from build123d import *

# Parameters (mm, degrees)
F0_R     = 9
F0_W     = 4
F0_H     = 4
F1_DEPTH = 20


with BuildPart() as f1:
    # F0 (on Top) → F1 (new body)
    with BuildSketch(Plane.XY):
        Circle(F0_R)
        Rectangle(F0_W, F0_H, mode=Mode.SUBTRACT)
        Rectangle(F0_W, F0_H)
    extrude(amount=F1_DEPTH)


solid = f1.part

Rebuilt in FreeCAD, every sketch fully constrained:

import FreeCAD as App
import Part
import Sketcher

V = App.Vector

doc = App.newDocument("Part")
body = doc.addObject("PartDesign::Body", "Body")

# Sketch on XY plane
sketch1 = doc.addObject("Sketcher::SketchObject", "Sketch")
body.addObject(sketch1)
sketch1.AttachmentSupport = (doc.XY_Plane, [""])
sketch1.MapMode = "FlatFace"
sketch1.addGeometry(Part.Circle(V(0, 0, 0), V(0, 0, 1), 9), False)
sketch1.addConstraint([
    Sketcher.Constraint("Coincident", 0, 3, -1, 1),
    Sketcher.Constraint("Diameter", 0, 18.0),
])
pad1 = doc.addObject("PartDesign::Pad", "Pad")
body.addObject(pad1)
pad1.Profile = sketch1
pad1.Length = 20

doc.recompute()
